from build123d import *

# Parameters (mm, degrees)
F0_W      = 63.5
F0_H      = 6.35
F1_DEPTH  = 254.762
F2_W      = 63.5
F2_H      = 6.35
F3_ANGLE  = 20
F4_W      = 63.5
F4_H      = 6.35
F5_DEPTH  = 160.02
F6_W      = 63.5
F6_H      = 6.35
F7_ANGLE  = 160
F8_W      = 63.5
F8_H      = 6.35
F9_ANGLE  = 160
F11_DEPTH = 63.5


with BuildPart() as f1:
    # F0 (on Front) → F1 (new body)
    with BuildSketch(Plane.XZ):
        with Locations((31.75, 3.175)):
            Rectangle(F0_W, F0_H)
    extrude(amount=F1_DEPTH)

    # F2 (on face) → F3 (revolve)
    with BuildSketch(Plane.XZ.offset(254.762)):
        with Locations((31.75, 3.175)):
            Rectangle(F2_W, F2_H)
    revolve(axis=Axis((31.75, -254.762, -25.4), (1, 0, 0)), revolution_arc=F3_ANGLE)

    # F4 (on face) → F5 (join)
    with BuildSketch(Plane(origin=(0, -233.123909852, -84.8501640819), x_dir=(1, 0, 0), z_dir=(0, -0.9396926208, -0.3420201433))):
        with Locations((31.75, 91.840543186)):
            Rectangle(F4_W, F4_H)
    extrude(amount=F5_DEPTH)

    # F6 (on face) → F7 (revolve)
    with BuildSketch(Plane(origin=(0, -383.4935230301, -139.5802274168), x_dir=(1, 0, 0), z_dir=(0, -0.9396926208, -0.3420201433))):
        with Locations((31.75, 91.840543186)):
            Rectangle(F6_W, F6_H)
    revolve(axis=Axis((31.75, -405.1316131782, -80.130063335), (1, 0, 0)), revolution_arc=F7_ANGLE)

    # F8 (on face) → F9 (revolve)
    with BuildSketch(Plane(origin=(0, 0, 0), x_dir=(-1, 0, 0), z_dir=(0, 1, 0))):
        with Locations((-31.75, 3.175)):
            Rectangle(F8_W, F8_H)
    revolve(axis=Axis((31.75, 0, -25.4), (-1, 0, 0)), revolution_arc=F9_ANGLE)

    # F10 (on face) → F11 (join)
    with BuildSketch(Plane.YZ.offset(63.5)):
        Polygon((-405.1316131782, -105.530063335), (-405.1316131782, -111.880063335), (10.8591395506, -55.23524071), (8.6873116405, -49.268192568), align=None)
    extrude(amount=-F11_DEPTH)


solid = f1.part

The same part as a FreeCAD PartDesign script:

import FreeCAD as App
import Part
import Sketcher
from FreeCAD import Vector
Q = App.Units.Quantity


def add_polygon(sketch, points):
    """Adds a closed chain of lines whose ends are joined by coincident constraints."""
    first, n = sketch.GeometryCount, len(points)
    for a, b in zip(points, points[1:] + points[:1]):
        sketch.addGeometry(Part.LineSegment(App.Vector(*a, 0), App.Vector(*b, 0)), False)
    for i in range(n):
        sketch.addConstraint(Sketcher.Constraint("Coincident", first + i, 2, first + (i + 1) % n, 1))

doc = App.newDocument("Part")
body = doc.addObject("PartDesign::Body", "Body")

# Sketch on XZ plane
sketch1 = body.newObject("Sketcher::SketchObject", "Sketch")
sketch1.AttachmentSupport = (doc.getObject("XZ_Plane"), [""])
sketch1.MapMode = "FlatFace"
add_polygon(sketch1, [(0, 6), (0, 0), (64, 0), (64, 6)])  # lines 0-3
sketch1.addConstraint([
    Sketcher.Constraint("Vertical", 0),
    Sketcher.Constraint("Horizontal", 1),
    Sketcher.Constraint("Vertical", 2),
    Sketcher.Constraint("Horizontal", 3),
    Sketcher.Constraint("Coincident", 0, 2, -1, 1),
    Sketcher.Constraint("DistanceX", 1, 1, 1, 2, Q("2.5 in")),
    Sketcher.Constraint("DistanceY", 0, 2, 0, 1, Q("0.25 in")),
])
pad1 = body.newObject("PartDesign::Pad", "Pad")
pad1.Profile = sketch1
pad1.Length = Q("10.03 in")

# Sketch on XZ plane
sketch2 = body.newObject("Sketcher::SketchObject", "Sketch001")
sketch2.AttachmentSupport = (doc.getObject("XZ_Plane"), [""])
sketch2.MapMode = "FlatFace"
sketch2.AttachmentOffset = App.Placement(Vector(0, 0, 10.03 * 25.4), App.Rotation())
add_polygon(sketch2, [(0, 6), (0, 0), (64, 0), (64, 6)])  # lines 0-3
sketch2.addGeometry(Part.LineSegment(Vector(0, -25, 0), Vector(64, -25, 0)), True)  # axis
sketch2.addConstraint([
    Sketcher.Constraint("Vertical", 0),
    Sketcher.Constraint("Horizontal", 1),
    Sketcher.Constraint("Vertical", 2),
    Sketcher.Constraint("Horizontal", 3),
    Sketcher.Constraint("Horizontal", 4),
    Sketcher.Constraint("Coincident", 0, 2, -1, 1),
    Sketcher.Constraint("PointOnObject", 4, 1, -2),
    Sketcher.Constraint("Vertical", 2, 2, 4, 2),
    Sketcher.Constraint("DistanceX", 1, 1, 1, 2, Q("2.5 in")),
    Sketcher.Constraint("DistanceY", 4, 1, -1, 1, Q("1 in")),
    Sketcher.Constraint("DistanceY", 0, 2, 0, 1, Q("0.25 in")),
])
revolution = body.newObject("PartDesign::Revolution", "Revolution")
revolution.Profile = sketch2
revolution.ReferenceAxis = (sketch2, ["Axis0"])
revolution.Angle = 20

# Sketch on an angled plane
sketch3 = body.newObject("Sketcher::SketchObject", "Sketch002")
sketch3.Placement = App.Placement(Vector(0, -233.12391, -84.850164), App.Rotation(Vector(1, 0, 0), Vector(0, -0.342020143, 0.939692621), Vector(0, -0.939692621, -0.342020143), "ZXY"))
add_polygon(sketch3, [(0, 95), (0, 89), (64, 89), (64, 95)])  # lines 0-3
sketch3.addConstraint([
    Sketcher.Constraint("Vertical", 0),
    Sketcher.Constraint("Horizontal", 1),
    Sketcher.Constraint("Vertical", 2),
    Sketcher.Constraint("Horizontal", 3),
    Sketcher.Constraint("PointOnObject", 0, 2, -2),
    Sketcher.Constraint("DistanceX", 1, 1, 1, 2, Q("2.5 in")),
    Sketcher.Constraint("DistanceY", 0, 2, 0, 1, Q("0.25 in")),
    Sketcher.Constraint("DistanceY", -1, 1, 0, 2, Q("88.665543 mm")),
])
pad2 = body.newObject("PartDesign::Pad", "Pad001")
pad2.Profile = sketch3
pad2.Length = Q("6.3 in")

# Sketch on an angled plane
sketch4 = body.newObject("Sketcher::SketchObject", "Sketch003")
sketch4.Placement = App.Placement(Vector(0, -383.493523, -139.580227), App.Rotation(Vector(1, 0, 0), Vector(0, -0.342020143, 0.939692621), Vector(0, -0.939692621, -0.342020143), "ZXY"))
add_polygon(sketch4, [(0, 95), (0, 89), (64, 89), (64, 95)])  # lines 0-3
sketch4.addGeometry(Part.LineSegment(Vector(0, 63, 0), Vector(64, 63, 0)), True)  # axis
sketch4.addConstraint([
    Sketcher.Constraint("Vertical", 0),
    Sketcher.Constraint("Horizontal", 1),
    Sketcher.Constraint("Vertical", 2),
    Sketcher.Constraint("Horizontal", 3),
    Sketcher.Constraint("Horizontal", 4),
    Sketcher.Constraint("PointOnObject", 0, 2, -2),
    Sketcher.Constraint("PointOnObject", 4, 1, -2),
    Sketcher.Constraint("Vertical", 2, 2, 4, 2),
    Sketcher.Constraint("DistanceX", 1, 1, 1, 2, Q("2.5 in")),
    Sketcher.Constraint("DistanceY", 4, 1, 0, 2, Q("1 in")),
    Sketcher.Constraint("DistanceY", 0, 2, 0, 1, Q("0.25 in")),
    Sketcher.Constraint("DistanceY", -1, 1, 0, 2, Q("88.665543 mm")),
])
revolution2 = body.newObject("PartDesign::Revolution", "Revolution001")
revolution2.Profile = sketch4
revolution2.ReferenceAxis = (sketch4, ["Axis0"])
revolution2.Angle = 160

# Sketch on XZ plane
sketch5 = body.newObject("Sketcher::SketchObject", "Sketch004")
sketch5.AttachmentSupport = (doc.getObject("XZ_Plane"), [""])
sketch5.MapMode = "FlatFace"
add_polygon(sketch5, [(64, 6), (64, 0), (0, 0), (0, 6)])  # lines 0-3
sketch5.addGeometry(Part.LineSegment(Vector(64, -25, 0), Vector(0, -25, 0)), True)  # axis
sketch5.addConstraint([
    Sketcher.Constraint("Vertical", 0),
    Sketcher.Constraint("Horizontal", 1),
    Sketcher.Constraint("Vertical", 2),
    Sketcher.Constraint("Horizontal", 3),
    Sketcher.Constraint("Horizontal", 4),
    Sketcher.Constraint("Coincident", 1, 2, -1, 1),
    Sketcher.Constraint("PointOnObject", 4, 2, -2),
    Sketcher.Constraint("Vertical", 3, 2, 4, 1),
    Sketcher.Constraint("DistanceX", 1, 2, 1, 1, Q("2.5 in")),
    Sketcher.Constraint("DistanceY", 4, 1, -1, 1, Q("1 in")),
    Sketcher.Constraint("DistanceY", 0, 2, 0, 1, Q("0.25 in")),
])
revolution3 = body.newObject("PartDesign::Revolution", "Revolution002")
revolution3.Profile = sketch5
revolution3.ReferenceAxis = (sketch5, ["Axis0"])
revolution3.Angle = 160

# Sketch on YZ plane
sketch6 = body.newObject("Sketcher::SketchObject", "Sketch005")
sketch6.AttachmentSupport = (doc.getObject("YZ_Plane"), [""])
sketch6.MapMode = "FlatFace"
sketch6.AttachmentOffset = App.Placement(Vector(0, 0, 2.5 * 25.4), App.Rotation())
add_polygon(sketch6, [(-405, -106), (-405, -112), (11, -55), (9, -49)])  # lines 0-3
sketch6.addConstraint([
    Sketcher.Constraint("Vertical", 0),
    Sketcher.Constraint("Angle", 2, Q("110 deg")),
    Sketcher.Constraint("DistanceY", 0, 2, 0, 1, Q("0.25 in")),
    Sketcher.Constraint("Distance", 2, Q("0.25 in")),
    Sketcher.Constraint("Distance", 1, Q("419.829659 mm")),
    Sketcher.Constraint("DistanceX", -1, 1, 1, 2, Q("10.85914 mm")),
    Sketcher.Constraint("DistanceY", 1, 2, -1, 1, Q("55.235241 mm")),
    Sketcher.Constraint("DistanceY", 0, 2, 2, 2, Q("62.611871 mm")),
])
pad3 = body.newObject("PartDesign::Pad", "Pad002")
pad3.Profile = sketch6
pad3.Length = Q("2.5 in")
pad3.Reversed = True

doc.recompute()
